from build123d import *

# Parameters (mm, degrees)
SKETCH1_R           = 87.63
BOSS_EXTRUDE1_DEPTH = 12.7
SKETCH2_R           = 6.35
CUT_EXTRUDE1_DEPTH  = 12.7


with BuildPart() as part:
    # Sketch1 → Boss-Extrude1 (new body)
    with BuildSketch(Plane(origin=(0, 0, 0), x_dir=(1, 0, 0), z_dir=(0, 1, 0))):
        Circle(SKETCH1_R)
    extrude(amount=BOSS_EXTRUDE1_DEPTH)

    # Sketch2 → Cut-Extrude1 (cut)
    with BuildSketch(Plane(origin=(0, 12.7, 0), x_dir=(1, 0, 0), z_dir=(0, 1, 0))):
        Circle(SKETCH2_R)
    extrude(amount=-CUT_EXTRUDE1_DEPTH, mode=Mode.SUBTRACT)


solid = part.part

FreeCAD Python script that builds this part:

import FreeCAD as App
import Part
import Sketcher
from FreeCAD import Vector
Q = App.Units.Quantity

doc = App.newDocument("Part")
body = doc.addObject("PartDesign::Body", "Body")

# Sketch on XZ plane
sketch1 = body.newObject("Sketcher::SketchObject", "Sketch")
sketch1.AttachmentSupport = (doc.getObject("XZ_Plane"), [""])
sketch1.MapMode = "FlatFace"
sketch1.addGeometry(Part.Circle(Vector(0, 0, 0), Vector(0, 0, 1), 88), False)
sketch1.addConstraint([
    Sketcher.Constraint("Coincident", 0, 3, -1, 1),
    Sketcher.Constraint("Diameter", 0, Q("6.9 in")),
])
pad1 = body.newObject("PartDesign::Pad", "Pad")
pad1.Profile = sketch1
pad1.Length = Q("0.5 in")
pad1.Reversed = True

# Sketch on XZ plane
sketch2 = body.newObject("Sketcher::SketchObject", "Sketch001")
sketch2.AttachmentSupport = (doc.getObject("XZ_Plane"), [""])
sketch2.MapMode = "FlatFace"
sketch2.AttachmentOffset = App.Placement(Vector(0, 0, -0.5 * 25.4), App.Rotation())
sketch2.addGeometry(Part.Circle(Vector(0, 0, 0), Vector(0, 0, 1), 6), False)
sketch2.addConstraint([
    Sketcher.Constraint("Coincident", 0, 3, -1, 1),
    Sketcher.Constraint("Diameter", 0, Q("0.5 in")),
])
pocket1 = body.newObject("PartDesign::Pocket", "Pocket")
pocket1.Profile = sketch2
pocket1.Length = Q("0.5 in")
pocket1.Reversed = True

doc.recompute()
